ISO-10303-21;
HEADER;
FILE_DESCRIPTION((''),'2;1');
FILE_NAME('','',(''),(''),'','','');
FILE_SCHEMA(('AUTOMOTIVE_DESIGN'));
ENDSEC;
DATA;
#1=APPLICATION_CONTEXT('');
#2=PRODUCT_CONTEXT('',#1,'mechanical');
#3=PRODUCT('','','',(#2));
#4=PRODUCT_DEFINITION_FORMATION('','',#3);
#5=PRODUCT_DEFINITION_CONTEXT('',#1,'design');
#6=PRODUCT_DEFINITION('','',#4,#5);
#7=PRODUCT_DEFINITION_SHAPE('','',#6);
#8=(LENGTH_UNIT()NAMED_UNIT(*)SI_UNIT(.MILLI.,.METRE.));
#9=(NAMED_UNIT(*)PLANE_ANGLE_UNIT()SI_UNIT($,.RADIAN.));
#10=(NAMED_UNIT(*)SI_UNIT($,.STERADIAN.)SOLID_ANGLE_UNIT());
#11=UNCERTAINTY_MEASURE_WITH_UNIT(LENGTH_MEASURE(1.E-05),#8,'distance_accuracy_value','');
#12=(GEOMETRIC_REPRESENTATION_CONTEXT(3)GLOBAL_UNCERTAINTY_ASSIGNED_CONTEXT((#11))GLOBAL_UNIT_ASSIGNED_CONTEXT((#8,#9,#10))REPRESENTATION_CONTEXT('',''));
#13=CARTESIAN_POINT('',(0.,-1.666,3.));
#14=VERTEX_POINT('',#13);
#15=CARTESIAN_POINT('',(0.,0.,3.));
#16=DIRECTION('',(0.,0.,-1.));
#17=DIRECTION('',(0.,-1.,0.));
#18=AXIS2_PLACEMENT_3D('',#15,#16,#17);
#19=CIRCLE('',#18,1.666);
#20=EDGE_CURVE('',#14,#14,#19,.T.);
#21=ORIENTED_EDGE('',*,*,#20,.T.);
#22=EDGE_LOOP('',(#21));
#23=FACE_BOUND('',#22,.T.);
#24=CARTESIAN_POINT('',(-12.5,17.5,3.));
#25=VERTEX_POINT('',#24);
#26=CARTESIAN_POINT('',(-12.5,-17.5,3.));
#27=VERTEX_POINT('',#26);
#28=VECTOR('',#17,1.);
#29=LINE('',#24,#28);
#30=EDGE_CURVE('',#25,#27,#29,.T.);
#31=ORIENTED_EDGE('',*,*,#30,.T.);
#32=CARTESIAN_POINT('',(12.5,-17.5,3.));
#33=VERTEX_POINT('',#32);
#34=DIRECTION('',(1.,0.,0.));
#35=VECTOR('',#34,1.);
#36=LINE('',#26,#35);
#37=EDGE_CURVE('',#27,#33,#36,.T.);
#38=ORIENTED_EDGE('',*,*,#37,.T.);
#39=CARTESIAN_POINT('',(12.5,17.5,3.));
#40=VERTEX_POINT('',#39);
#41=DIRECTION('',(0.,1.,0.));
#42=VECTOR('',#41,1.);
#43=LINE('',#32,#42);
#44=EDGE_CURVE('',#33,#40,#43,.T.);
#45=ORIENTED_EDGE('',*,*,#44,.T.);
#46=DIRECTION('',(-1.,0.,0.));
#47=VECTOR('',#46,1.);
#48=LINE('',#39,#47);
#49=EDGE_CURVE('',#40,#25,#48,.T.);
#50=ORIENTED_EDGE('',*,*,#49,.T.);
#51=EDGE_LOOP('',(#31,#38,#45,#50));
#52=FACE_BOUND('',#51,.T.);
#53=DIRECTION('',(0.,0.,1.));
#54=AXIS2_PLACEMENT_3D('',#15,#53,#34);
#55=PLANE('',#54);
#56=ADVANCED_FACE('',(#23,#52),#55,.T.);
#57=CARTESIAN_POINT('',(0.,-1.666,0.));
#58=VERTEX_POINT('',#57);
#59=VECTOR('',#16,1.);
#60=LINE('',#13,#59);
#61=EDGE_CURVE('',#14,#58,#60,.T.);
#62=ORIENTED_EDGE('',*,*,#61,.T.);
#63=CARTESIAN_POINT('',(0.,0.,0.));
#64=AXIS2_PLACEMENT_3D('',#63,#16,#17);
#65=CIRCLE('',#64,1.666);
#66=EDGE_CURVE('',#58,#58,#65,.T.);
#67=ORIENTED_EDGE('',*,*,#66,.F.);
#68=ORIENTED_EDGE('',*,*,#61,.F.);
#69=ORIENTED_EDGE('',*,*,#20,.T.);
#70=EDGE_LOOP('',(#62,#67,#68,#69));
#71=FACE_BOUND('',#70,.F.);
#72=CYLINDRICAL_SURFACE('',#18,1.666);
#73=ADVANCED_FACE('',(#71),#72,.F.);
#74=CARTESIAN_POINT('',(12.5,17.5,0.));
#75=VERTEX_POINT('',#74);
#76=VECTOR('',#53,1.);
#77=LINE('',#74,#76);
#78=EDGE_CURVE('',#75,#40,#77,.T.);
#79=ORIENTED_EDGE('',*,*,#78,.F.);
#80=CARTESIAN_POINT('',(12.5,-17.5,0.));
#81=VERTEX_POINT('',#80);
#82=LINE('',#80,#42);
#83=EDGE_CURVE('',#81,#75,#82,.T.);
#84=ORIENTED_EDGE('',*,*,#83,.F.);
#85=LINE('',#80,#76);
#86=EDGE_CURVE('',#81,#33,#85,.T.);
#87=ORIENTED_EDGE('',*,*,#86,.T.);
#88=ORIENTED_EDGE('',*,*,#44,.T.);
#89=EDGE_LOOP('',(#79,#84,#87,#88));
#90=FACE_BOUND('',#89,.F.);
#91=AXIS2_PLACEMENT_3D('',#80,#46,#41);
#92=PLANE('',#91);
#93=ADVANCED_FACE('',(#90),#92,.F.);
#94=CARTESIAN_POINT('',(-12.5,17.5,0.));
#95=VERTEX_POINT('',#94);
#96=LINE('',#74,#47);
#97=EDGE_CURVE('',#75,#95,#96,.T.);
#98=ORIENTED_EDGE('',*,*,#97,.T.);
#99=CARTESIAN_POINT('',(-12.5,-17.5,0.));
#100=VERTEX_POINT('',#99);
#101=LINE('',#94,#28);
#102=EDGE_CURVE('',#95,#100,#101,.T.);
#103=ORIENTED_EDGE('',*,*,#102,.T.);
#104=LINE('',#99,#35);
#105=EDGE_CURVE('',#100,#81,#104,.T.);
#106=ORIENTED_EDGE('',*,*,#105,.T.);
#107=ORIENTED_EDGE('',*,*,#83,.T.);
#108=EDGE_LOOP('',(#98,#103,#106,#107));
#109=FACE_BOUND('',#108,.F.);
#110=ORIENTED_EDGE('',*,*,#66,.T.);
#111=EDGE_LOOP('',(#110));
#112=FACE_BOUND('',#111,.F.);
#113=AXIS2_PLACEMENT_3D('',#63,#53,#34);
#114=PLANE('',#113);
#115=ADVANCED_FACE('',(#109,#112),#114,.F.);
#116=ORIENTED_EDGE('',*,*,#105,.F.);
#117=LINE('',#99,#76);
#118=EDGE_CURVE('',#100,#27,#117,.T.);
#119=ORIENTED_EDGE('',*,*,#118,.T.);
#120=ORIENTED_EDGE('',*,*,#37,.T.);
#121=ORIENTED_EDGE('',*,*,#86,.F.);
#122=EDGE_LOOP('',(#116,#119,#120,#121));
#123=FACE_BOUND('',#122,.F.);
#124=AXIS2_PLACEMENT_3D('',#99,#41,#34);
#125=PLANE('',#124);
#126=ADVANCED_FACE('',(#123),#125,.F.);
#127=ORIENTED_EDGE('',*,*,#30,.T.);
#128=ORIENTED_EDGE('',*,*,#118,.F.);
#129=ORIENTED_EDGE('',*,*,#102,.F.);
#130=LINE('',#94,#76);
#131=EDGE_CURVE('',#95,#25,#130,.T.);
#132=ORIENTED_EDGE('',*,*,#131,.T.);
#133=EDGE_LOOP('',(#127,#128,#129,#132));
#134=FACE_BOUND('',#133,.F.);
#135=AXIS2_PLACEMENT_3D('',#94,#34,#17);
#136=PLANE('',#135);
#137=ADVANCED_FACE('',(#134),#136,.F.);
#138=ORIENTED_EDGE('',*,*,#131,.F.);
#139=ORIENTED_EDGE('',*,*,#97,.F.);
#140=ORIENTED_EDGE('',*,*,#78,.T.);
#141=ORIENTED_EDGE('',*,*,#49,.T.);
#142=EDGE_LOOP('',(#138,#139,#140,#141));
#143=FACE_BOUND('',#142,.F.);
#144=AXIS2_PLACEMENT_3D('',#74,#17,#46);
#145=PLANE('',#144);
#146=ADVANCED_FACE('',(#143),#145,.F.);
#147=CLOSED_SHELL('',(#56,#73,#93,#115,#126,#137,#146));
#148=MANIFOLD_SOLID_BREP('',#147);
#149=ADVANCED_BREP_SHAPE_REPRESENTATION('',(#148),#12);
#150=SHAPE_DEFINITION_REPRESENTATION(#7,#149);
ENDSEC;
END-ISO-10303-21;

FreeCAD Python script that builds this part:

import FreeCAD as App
import Part
import Sketcher
from FreeCAD import Vector
Q = App.Units.Quantity

doc = App.newDocument("Part")
body = doc.addObject("PartDesign::Body", "Body")

# Sketch on XY plane
sketch1 = body.newObject("Sketcher::SketchObject", "Sketch")
sketch1.AttachmentSupport = (doc.getObject("XY_Plane"), [""])
sketch1.MapMode = "FlatFace"
sketch1.addGeometry([
    Part.LineSegment(Vector(-12, 18, 0), Vector(-12, -18, 0)),
    Part.LineSegment(Vector(-12, -18, 0), Vector(12, -18, 0)),
    Part.LineSegment(Vector(12, -18, 0), Vector(12, 18, 0)),
    Part.LineSegment(Vector(12, 18, 0), Vector(-12, 18, 0)),
], False)
sketch1.addConstraint([
    Sketcher.Constraint("Coincident", 0, 2, 1, 1),
    Sketcher.Constraint("Coincident", 1, 2, 2, 1),
    Sketcher.Constraint("Coincident", 2, 2, 3, 1),
    Sketcher.Constraint("Coincident", 3, 2, 0, 1),
    Sketcher.Constraint("Vertical", 0),
    Sketcher.Constraint("Horizontal", 1),
    Sketcher.Constraint("Vertical", 2),
    Sketcher.Constraint("Horizontal", 3),
    Sketcher.Constraint("Symmetric", 0, 2, 2, 2, -1, 1),
    Sketcher.Constraint("DistanceX", 1, 1, 1, 2, Q("25 mm")),
    Sketcher.Constraint("DistanceY", 0, 2, 0, 1, Q("35 mm")),
])
pad1 = body.newObject("PartDesign::Pad", "Pad")
pad1.Profile = sketch1
pad1.Length = 3

# Sketch on XY plane
sketch2 = body.newObject("Sketcher::SketchObject", "Sketch001")
sketch2.AttachmentSupport = (doc.getObject("XY_Plane"), [""])
sketch2.MapMode = "FlatFace"
sketch2.AttachmentOffset = App.Placement(Vector(0, 0, 3), App.Rotation())
sketch2.addGeometry(Part.Circle(Vector(0, 0, 0), Vector(0, 0, 1), 1.7), False)
sketch2.addConstraint([
    Sketcher.Constraint("Coincident", 0, 3, -1, 1),
    Sketcher.Constraint("Diameter", 0, Q("3.332 mm")),
])
doc.recompute()
hole = body.newObject("PartDesign::Hole", "Hole")
hole.Profile = sketch2
hole.ThreadType = "None"
hole.Diameter = 3.332
hole.DepthType = "ThroughAll"

doc.recompute()
